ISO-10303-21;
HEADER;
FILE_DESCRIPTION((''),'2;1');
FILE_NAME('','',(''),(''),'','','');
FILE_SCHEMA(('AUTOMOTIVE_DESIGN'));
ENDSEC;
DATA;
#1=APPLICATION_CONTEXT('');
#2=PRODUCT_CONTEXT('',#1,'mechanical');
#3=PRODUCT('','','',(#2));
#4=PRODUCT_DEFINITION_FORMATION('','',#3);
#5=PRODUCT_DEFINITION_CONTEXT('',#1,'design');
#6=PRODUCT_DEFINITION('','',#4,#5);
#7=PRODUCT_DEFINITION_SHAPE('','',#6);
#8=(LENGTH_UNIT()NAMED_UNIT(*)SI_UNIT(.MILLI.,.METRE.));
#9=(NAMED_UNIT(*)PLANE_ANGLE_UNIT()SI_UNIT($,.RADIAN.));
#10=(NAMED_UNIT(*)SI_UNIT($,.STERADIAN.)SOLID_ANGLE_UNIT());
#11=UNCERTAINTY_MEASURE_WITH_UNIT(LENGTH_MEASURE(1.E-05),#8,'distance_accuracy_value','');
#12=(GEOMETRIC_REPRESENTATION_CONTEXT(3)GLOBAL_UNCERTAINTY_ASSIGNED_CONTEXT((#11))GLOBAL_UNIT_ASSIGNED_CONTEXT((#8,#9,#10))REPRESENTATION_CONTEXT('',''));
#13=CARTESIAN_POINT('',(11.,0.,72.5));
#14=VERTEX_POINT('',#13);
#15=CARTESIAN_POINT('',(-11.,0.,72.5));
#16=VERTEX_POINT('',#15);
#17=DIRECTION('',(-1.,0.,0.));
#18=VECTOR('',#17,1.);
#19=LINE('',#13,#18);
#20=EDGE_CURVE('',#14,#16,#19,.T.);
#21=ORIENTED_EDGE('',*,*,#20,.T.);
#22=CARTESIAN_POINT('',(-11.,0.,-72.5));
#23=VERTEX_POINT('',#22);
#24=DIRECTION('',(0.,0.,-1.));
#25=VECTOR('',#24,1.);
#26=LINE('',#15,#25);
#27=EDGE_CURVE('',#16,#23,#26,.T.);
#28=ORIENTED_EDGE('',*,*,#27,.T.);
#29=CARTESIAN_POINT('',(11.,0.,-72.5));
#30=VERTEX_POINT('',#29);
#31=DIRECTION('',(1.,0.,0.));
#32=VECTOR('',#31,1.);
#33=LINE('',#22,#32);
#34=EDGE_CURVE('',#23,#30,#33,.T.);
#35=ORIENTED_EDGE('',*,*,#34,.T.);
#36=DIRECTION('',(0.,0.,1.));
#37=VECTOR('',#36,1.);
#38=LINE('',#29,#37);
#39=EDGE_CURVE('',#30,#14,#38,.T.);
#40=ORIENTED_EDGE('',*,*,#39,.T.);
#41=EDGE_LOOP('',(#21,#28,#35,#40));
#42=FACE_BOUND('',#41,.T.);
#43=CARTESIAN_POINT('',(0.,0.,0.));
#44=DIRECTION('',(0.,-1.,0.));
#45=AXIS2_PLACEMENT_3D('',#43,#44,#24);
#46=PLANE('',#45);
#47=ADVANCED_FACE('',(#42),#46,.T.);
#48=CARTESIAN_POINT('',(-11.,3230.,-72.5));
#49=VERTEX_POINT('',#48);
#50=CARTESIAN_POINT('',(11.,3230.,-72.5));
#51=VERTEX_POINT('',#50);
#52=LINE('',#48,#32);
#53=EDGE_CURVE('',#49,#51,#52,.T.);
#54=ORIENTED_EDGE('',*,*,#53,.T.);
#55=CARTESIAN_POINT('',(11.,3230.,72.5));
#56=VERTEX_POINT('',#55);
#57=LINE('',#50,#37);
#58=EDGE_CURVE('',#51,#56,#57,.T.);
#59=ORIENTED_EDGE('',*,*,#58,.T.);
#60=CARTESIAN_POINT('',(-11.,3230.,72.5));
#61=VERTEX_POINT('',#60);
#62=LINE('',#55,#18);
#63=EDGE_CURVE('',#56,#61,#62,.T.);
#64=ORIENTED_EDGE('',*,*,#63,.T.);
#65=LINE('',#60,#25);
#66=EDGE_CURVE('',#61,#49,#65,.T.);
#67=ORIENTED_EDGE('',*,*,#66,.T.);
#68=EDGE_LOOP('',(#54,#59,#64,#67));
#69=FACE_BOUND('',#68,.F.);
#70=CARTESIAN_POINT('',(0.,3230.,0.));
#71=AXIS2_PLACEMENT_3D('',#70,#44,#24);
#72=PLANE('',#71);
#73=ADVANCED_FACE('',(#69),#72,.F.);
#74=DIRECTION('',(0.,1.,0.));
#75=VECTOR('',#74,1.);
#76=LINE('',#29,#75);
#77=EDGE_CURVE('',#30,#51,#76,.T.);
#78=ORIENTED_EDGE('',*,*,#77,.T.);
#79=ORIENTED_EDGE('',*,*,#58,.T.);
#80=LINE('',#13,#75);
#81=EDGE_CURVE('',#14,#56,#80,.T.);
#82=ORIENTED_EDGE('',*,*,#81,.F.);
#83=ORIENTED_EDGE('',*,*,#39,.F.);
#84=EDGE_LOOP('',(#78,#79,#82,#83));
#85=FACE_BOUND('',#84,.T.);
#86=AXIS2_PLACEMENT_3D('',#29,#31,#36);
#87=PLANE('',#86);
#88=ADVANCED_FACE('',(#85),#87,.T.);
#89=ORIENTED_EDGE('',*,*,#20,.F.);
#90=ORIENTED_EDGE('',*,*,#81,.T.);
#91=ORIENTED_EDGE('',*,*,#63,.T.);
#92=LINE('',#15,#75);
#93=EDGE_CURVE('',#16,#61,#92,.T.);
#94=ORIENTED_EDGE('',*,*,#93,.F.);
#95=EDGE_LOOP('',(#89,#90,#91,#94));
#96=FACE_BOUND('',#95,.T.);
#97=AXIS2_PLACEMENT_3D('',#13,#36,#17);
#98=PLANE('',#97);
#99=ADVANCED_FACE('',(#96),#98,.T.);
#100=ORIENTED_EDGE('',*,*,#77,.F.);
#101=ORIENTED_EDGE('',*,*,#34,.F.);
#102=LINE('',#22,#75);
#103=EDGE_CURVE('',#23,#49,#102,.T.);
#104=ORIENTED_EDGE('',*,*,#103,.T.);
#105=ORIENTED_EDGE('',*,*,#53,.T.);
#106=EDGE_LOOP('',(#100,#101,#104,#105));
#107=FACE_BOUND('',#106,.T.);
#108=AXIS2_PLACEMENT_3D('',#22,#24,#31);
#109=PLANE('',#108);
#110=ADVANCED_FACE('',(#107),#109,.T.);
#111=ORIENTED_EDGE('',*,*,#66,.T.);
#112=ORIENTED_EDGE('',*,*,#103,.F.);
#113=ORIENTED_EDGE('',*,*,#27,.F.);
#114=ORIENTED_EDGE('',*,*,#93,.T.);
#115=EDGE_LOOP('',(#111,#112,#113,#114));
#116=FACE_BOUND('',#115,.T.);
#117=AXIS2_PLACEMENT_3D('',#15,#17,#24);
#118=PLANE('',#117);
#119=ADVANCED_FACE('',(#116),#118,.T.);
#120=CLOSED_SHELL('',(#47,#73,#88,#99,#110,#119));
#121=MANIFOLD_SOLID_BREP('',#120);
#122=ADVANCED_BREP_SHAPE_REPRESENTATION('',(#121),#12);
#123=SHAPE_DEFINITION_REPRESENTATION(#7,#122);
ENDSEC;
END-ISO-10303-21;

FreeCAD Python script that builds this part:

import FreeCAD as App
import Part
import Sketcher
from FreeCAD import Vector
Q = App.Units.Quantity

doc = App.newDocument("Part")
body = doc.addObject("PartDesign::Body", "Body")

sketch1 = body.newObject("Sketcher::SketchObject", "Sketch")
sketch1.AttachmentSupport = (doc.getObject("XZ_Plane"), [""])
sketch1.MapMode = "FlatFace"
sketch1.addGeometry([
    Part.LineSegment(Vector(-11, 72.5, 0), Vector(-11, -72.5, 0)),
    Part.LineSegment(Vector(-11, -72.5, 0), Vector(11, -72.5, 0)),
    Part.LineSegment(Vector(11, -72.5, 0), Vector(11, 72.5, 0)),
    Part.LineSegment(Vector(11, 72.5, 0), Vector(-11, 72.5, 0)),
], False)
sketch1.addConstraint([
    Sketcher.Constraint("Coincident", 0, 2, 1, 1),
    Sketcher.Constraint("Coincident", 1, 2, 2, 1),
    Sketcher.Constraint("Coincident", 2, 2, 3, 1),
    Sketcher.Constraint("Coincident", 3, 2, 0, 1),
    Sketcher.Constraint("Vertical", 0),
    Sketcher.Constraint("Horizontal", 1),
    Sketcher.Constraint("Vertical", 2),
    Sketcher.Constraint("Horizontal", 3),
    Sketcher.Constraint("Symmetric", 0, 2, 2, 2, -1, 1),
    Sketcher.Constraint("DistanceX", 1, 1, 1, 2, Q("22 mm")),
    Sketcher.Constraint("DistanceY", 0, 2, 0, 1, Q("145 mm")),
])
pad1 = body.newObject("PartDesign::Pad", "Pad")
pad1.Profile = sketch1
pad1.Length = 3230
pad1.Reversed = True

doc.recompute()
